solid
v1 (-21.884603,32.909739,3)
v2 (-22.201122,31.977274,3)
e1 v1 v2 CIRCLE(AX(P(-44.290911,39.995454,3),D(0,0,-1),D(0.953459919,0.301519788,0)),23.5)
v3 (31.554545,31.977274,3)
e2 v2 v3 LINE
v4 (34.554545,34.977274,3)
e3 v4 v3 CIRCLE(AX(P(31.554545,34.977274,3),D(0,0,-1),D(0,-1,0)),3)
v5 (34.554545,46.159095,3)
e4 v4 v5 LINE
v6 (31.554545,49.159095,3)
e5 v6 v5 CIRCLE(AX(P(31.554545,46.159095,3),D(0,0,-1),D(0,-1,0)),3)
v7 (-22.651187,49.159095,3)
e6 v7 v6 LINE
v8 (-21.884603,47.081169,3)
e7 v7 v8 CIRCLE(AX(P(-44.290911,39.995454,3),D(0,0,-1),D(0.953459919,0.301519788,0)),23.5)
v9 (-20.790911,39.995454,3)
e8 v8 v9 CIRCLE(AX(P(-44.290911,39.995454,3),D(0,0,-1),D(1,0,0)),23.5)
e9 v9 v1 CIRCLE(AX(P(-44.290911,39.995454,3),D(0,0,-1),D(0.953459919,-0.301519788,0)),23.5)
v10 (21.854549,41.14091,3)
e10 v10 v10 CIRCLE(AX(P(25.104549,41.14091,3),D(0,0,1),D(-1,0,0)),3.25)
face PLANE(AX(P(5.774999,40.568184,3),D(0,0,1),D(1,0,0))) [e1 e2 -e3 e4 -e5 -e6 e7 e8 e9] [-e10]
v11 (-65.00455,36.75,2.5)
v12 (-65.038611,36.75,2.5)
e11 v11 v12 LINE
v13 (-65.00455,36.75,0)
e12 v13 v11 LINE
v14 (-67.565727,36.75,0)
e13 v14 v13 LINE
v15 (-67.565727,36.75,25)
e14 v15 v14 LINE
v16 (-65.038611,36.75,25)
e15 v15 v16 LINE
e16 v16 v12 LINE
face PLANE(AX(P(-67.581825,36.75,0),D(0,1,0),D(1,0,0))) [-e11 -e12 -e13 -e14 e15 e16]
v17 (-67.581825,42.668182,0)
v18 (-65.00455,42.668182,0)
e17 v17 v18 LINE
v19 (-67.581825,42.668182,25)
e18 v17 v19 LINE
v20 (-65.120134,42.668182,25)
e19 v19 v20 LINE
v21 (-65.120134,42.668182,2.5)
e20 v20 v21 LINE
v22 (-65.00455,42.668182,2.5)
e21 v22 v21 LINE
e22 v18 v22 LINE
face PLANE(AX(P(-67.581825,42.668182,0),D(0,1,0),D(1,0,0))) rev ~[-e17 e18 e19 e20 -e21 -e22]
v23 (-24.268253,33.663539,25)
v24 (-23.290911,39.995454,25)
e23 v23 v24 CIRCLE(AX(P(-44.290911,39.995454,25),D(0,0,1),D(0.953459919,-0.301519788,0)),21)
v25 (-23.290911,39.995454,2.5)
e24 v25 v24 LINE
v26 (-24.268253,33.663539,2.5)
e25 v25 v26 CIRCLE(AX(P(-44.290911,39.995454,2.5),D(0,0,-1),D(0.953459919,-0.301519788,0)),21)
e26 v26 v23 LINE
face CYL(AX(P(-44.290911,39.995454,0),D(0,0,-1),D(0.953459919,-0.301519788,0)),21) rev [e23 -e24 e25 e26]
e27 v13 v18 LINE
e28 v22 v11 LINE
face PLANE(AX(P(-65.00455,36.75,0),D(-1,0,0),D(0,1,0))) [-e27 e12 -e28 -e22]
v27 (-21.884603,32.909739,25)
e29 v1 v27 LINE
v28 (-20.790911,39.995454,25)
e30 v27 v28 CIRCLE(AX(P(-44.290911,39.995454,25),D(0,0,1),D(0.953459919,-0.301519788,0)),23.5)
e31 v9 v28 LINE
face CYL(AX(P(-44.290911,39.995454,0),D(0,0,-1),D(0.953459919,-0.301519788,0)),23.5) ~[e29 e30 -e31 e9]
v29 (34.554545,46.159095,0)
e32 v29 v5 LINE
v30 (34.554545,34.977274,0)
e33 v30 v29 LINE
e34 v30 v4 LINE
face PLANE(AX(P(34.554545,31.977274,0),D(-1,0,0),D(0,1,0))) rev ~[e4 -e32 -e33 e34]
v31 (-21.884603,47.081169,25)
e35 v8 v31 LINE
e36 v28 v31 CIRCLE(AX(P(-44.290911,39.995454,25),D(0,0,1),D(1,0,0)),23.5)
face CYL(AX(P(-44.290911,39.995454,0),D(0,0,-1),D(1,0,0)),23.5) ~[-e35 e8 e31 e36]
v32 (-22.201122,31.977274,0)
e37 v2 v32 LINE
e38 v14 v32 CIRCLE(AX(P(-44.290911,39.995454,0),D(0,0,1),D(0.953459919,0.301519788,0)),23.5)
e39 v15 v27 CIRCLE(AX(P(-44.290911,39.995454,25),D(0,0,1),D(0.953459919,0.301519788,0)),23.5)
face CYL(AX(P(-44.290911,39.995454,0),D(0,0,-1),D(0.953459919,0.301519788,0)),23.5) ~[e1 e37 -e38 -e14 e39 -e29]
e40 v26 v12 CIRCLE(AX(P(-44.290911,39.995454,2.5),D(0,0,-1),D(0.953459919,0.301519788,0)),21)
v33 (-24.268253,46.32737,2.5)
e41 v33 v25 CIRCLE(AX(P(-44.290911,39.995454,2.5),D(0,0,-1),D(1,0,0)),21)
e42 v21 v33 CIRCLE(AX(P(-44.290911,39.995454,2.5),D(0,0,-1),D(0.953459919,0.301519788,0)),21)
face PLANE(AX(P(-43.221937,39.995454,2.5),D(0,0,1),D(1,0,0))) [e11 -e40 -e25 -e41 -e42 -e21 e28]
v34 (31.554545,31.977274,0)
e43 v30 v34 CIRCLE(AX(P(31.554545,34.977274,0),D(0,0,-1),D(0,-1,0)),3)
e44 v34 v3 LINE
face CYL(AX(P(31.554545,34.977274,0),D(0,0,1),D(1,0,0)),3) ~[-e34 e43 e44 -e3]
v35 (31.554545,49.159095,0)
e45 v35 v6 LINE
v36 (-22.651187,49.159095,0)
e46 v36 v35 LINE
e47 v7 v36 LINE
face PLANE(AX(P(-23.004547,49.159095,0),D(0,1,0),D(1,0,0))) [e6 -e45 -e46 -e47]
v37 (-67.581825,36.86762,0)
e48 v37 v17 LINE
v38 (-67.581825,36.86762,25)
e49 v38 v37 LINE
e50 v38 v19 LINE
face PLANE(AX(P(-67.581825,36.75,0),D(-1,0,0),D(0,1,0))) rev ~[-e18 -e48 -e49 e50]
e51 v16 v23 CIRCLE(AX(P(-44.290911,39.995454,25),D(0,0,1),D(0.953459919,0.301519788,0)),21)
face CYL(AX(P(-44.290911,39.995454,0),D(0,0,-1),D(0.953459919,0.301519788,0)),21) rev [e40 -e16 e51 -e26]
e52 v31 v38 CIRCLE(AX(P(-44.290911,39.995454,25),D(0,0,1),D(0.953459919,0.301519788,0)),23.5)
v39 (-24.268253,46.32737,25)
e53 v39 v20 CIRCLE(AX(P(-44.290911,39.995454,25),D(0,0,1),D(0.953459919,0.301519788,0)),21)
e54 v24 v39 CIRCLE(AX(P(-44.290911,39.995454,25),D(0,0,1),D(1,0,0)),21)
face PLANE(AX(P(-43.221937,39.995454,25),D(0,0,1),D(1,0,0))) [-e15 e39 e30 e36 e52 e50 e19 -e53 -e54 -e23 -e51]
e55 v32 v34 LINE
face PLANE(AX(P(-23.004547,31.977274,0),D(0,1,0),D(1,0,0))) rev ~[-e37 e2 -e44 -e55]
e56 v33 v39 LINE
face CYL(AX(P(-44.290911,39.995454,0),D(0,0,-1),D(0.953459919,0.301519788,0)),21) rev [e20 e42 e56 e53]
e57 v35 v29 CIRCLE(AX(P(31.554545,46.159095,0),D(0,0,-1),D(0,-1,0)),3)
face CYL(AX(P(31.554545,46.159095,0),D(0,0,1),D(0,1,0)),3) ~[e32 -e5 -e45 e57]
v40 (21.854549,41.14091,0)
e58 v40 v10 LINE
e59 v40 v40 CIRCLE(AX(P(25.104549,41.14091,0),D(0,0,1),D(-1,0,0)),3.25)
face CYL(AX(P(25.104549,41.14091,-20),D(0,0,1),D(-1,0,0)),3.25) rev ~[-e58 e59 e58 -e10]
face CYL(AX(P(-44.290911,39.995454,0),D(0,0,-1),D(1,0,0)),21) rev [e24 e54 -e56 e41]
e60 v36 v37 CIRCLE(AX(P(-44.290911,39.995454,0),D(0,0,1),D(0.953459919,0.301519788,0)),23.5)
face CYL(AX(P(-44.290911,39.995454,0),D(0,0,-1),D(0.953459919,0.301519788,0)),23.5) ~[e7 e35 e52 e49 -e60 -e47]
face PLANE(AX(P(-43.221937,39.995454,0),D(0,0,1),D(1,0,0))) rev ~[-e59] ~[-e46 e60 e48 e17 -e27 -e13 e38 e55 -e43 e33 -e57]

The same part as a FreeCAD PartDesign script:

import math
import FreeCAD as App
import Part
import Sketcher

V = App.Vector


def edges_at(feature, points):
    """Names of the edges that pass closest to the given points."""
    edges = feature.Shape.Edges
    near = lambda p: min(range(len(edges)), key=lambda i: edges[i].distToShape(Part.Vertex(*p))[0])
    return sorted({f"Edge{near(p) + 1}" for p in points})


def faces_at(feature, points):
    """Names of the faces that lie closest to the given points."""
    faces = feature.Shape.Faces
    near = lambda p: min(range(len(faces)), key=lambda i: faces[i].distToShape(Part.Vertex(*p))[0])
    return sorted({f"Face{near(p) + 1}" for p in points})


def add_polygon(sketch, points):
    """Adds a closed chain of lines whose ends are joined by coincident constraints."""
    first, n = sketch.GeometryCount, len(points)
    for a, b in zip(points, points[1:] + points[:1]):
        sketch.addGeometry(Part.LineSegment(App.Vector(*a, 0), App.Vector(*b, 0)), False)
    for i in range(n):
        sketch.addConstraint(Sketcher.Constraint("Coincident", first + i, 2, first + (i + 1) % n, 1))

doc = App.newDocument("Part")
body = doc.addObject("PartDesign::Body", "Body")

sketch1 = body.newObject("Sketcher::SketchObject", "Sketch")
sketch1.AttachmentSupport = (doc.getObject("XY_Plane"), [""])
sketch1.MapMode = "FlatFace"
sketch1.addGeometry(Part.ArcOfCircle(Part.Circle(V(-44.290911, 39.995454, 0), V(0, 0, 1), 23.5), math.radians(-17.548908), math.radians(0)), False)
sketch1.addGeometry(Part.ArcOfCircle(Part.Circle(V(-44.290911, 39.995454, 0), V(0, 0, 1), 23.5), math.radians(0), math.radians(17.548908)), False)
sketch1.addGeometry(Part.ArcOfCircle(Part.Circle(V(-44.290911, 39.995454, 0), V(0, 0, 1), 23.5), math.radians(17.548908), math.radians(342.451092)), False)
sketch1.addConstraint(Sketcher.Constraint("Tangent", 0, 2, 1, 1))
sketch1.addConstraint(Sketcher.Constraint("Tangent", 1, 2, 2, 1))
sketch1.addConstraint(Sketcher.Constraint("Tangent", 2, 2, 0, 1))
sketch1.addConstraint(Sketcher.Constraint("Horizontal", 2, 3, 0, 2))
sketch1.addConstraint(Sketcher.Constraint("Vertical", 1, 2, 2, 2))
sketch1.addConstraint(Sketcher.Constraint("Radius", 0, 23.5))
sketch1.addConstraint(Sketcher.Constraint("DistanceX", 0, 3, -1, 1, 44.290911))
sketch1.addConstraint(Sketcher.Constraint("DistanceY", -1, 1, 1, 2, 47.081169))
sketch1.addConstraint(Sketcher.Constraint("DistanceY", -1, 1, 2, 2, 32.909739))
pad1 = body.newObject("PartDesign::Pad", "Pad")
pad1.Profile = sketch1
pad1.Length = 25
doc.recompute()

thickness = body.newObject("PartDesign::Thickness", "Thickness")
thickness.Base = (pad1, faces_at(pad1, [(-44.291, 39.995, 25)]))
thickness.Value = 2.5
thickness.Reversed = True
thickness.Join = "Arc"

sketch2 = body.newObject("Sketcher::SketchObject", "Sketch001")
sketch2.AttachmentSupport = (doc.getObject("XY_Plane"), [""])
sketch2.MapMode = "FlatFace"
add_polygon(sketch2, [(-23.004547, 49.159095), (-23.004547, 31.977274), (34.554545, 31.977274), (34.554545, 49.159095)])
sketch2.addConstraint(Sketcher.Constraint("Vertical", 0))
sketch2.addConstraint(Sketcher.Constraint("Horizontal", 1))
sketch2.addConstraint(Sketcher.Constraint("Vertical", 2))
sketch2.addConstraint(Sketcher.Constraint("Horizontal", 3))
sketch2.addConstraint(Sketcher.Constraint("DistanceX", 1, 1, 1, 2, 57.559092))
sketch2.addConstraint(Sketcher.Constraint("DistanceY", 0, 2, 0, 1, 17.181821))
sketch2.addConstraint(Sketcher.Constraint("DistanceX", 0, 2, -1, 1, 23.004547))
sketch2.addConstraint(Sketcher.Constraint("DistanceY", -1, 1, 0, 2, 31.977274))
pad2 = body.newObject("PartDesign::Pad", "Pad001")
pad2.Profile = sketch2
pad2.Length = 3

sketch3 = body.newObject("Sketcher::SketchObject", "Sketch002")
sketch3.AttachmentSupport = (doc.getObject("XY_Plane"), [""])
sketch3.MapMode = "FlatFace"
sketch3.addGeometry(Part.Circle(V(25.104549, 41.14091, 0), V(0, 0, 1), 3.25), False)
sketch3.addConstraint(Sketcher.Constraint("Diameter", 0, 6.5))
sketch3.addConstraint(Sketcher.Constraint("DistanceX", -1, 1, 0, 3, 25.104549))
sketch3.addConstraint(Sketcher.Constraint("DistanceY", -1, 1, 0, 3, 41.14091))
doc.recompute()
hole = body.newObject("PartDesign::Hole", "Hole")
hole.Profile = sketch3
hole.ThreadType = "None"
hole.Diameter = 6.5
hole.DepthType = "Dimension"
hole.Depth = 20
hole.DrillPoint = "Angled"
hole.DrillPointAngle = 118
hole.Reversed = True

sketch4 = body.newObject("Sketcher::SketchObject", "Sketch003")
sketch4.AttachmentSupport = (doc.getObject("XY_Plane"), [""])
sketch4.MapMode = "FlatFace"
add_polygon(sketch4, [(-67.581825, 42.668182), (-67.581825, 36.75), (-65.00455, 36.75), (-65.00455, 42.668182)])
sketch4.addConstraint(Sketcher.Constraint("Vertical", 0))
sketch4.addConstraint(Sketcher.Constraint("Horizontal", 1))
sketch4.addConstraint(Sketcher.Constraint("Vertical", 2))
sketch4.addConstraint(Sketcher.Constraint("Horizontal", 3))
sketch4.addConstraint(Sketcher.Constraint("DistanceY", -1, 1, 0, 2, 36.75))
sketch4.addConstraint(Sketcher.Constraint("DistanceX", 1, 1, 1, 2, 2.577275))
sketch4.addConstraint(Sketcher.Constraint("DistanceY", 0, 2, 0, 1, 5.918182))
sketch4.addConstraint(Sketcher.Constraint("DistanceX", 1, 2, -1, 1, 65.00455))
pocket1 = body.newObject("PartDesign::Pocket", "Pocket")
pocket1.Profile = sketch4
pocket1.Length = 25
pocket1.Reversed = True
doc.recompute()

fillet = body.newObject("PartDesign::Fillet", "Fillet")
fillet.Base = (pocket1, edges_at(pocket1, [(34.555, 31.977, 1.5), (34.555, 49.159, 1.5)]))
fillet.Radius = 3

doc.recompute()
